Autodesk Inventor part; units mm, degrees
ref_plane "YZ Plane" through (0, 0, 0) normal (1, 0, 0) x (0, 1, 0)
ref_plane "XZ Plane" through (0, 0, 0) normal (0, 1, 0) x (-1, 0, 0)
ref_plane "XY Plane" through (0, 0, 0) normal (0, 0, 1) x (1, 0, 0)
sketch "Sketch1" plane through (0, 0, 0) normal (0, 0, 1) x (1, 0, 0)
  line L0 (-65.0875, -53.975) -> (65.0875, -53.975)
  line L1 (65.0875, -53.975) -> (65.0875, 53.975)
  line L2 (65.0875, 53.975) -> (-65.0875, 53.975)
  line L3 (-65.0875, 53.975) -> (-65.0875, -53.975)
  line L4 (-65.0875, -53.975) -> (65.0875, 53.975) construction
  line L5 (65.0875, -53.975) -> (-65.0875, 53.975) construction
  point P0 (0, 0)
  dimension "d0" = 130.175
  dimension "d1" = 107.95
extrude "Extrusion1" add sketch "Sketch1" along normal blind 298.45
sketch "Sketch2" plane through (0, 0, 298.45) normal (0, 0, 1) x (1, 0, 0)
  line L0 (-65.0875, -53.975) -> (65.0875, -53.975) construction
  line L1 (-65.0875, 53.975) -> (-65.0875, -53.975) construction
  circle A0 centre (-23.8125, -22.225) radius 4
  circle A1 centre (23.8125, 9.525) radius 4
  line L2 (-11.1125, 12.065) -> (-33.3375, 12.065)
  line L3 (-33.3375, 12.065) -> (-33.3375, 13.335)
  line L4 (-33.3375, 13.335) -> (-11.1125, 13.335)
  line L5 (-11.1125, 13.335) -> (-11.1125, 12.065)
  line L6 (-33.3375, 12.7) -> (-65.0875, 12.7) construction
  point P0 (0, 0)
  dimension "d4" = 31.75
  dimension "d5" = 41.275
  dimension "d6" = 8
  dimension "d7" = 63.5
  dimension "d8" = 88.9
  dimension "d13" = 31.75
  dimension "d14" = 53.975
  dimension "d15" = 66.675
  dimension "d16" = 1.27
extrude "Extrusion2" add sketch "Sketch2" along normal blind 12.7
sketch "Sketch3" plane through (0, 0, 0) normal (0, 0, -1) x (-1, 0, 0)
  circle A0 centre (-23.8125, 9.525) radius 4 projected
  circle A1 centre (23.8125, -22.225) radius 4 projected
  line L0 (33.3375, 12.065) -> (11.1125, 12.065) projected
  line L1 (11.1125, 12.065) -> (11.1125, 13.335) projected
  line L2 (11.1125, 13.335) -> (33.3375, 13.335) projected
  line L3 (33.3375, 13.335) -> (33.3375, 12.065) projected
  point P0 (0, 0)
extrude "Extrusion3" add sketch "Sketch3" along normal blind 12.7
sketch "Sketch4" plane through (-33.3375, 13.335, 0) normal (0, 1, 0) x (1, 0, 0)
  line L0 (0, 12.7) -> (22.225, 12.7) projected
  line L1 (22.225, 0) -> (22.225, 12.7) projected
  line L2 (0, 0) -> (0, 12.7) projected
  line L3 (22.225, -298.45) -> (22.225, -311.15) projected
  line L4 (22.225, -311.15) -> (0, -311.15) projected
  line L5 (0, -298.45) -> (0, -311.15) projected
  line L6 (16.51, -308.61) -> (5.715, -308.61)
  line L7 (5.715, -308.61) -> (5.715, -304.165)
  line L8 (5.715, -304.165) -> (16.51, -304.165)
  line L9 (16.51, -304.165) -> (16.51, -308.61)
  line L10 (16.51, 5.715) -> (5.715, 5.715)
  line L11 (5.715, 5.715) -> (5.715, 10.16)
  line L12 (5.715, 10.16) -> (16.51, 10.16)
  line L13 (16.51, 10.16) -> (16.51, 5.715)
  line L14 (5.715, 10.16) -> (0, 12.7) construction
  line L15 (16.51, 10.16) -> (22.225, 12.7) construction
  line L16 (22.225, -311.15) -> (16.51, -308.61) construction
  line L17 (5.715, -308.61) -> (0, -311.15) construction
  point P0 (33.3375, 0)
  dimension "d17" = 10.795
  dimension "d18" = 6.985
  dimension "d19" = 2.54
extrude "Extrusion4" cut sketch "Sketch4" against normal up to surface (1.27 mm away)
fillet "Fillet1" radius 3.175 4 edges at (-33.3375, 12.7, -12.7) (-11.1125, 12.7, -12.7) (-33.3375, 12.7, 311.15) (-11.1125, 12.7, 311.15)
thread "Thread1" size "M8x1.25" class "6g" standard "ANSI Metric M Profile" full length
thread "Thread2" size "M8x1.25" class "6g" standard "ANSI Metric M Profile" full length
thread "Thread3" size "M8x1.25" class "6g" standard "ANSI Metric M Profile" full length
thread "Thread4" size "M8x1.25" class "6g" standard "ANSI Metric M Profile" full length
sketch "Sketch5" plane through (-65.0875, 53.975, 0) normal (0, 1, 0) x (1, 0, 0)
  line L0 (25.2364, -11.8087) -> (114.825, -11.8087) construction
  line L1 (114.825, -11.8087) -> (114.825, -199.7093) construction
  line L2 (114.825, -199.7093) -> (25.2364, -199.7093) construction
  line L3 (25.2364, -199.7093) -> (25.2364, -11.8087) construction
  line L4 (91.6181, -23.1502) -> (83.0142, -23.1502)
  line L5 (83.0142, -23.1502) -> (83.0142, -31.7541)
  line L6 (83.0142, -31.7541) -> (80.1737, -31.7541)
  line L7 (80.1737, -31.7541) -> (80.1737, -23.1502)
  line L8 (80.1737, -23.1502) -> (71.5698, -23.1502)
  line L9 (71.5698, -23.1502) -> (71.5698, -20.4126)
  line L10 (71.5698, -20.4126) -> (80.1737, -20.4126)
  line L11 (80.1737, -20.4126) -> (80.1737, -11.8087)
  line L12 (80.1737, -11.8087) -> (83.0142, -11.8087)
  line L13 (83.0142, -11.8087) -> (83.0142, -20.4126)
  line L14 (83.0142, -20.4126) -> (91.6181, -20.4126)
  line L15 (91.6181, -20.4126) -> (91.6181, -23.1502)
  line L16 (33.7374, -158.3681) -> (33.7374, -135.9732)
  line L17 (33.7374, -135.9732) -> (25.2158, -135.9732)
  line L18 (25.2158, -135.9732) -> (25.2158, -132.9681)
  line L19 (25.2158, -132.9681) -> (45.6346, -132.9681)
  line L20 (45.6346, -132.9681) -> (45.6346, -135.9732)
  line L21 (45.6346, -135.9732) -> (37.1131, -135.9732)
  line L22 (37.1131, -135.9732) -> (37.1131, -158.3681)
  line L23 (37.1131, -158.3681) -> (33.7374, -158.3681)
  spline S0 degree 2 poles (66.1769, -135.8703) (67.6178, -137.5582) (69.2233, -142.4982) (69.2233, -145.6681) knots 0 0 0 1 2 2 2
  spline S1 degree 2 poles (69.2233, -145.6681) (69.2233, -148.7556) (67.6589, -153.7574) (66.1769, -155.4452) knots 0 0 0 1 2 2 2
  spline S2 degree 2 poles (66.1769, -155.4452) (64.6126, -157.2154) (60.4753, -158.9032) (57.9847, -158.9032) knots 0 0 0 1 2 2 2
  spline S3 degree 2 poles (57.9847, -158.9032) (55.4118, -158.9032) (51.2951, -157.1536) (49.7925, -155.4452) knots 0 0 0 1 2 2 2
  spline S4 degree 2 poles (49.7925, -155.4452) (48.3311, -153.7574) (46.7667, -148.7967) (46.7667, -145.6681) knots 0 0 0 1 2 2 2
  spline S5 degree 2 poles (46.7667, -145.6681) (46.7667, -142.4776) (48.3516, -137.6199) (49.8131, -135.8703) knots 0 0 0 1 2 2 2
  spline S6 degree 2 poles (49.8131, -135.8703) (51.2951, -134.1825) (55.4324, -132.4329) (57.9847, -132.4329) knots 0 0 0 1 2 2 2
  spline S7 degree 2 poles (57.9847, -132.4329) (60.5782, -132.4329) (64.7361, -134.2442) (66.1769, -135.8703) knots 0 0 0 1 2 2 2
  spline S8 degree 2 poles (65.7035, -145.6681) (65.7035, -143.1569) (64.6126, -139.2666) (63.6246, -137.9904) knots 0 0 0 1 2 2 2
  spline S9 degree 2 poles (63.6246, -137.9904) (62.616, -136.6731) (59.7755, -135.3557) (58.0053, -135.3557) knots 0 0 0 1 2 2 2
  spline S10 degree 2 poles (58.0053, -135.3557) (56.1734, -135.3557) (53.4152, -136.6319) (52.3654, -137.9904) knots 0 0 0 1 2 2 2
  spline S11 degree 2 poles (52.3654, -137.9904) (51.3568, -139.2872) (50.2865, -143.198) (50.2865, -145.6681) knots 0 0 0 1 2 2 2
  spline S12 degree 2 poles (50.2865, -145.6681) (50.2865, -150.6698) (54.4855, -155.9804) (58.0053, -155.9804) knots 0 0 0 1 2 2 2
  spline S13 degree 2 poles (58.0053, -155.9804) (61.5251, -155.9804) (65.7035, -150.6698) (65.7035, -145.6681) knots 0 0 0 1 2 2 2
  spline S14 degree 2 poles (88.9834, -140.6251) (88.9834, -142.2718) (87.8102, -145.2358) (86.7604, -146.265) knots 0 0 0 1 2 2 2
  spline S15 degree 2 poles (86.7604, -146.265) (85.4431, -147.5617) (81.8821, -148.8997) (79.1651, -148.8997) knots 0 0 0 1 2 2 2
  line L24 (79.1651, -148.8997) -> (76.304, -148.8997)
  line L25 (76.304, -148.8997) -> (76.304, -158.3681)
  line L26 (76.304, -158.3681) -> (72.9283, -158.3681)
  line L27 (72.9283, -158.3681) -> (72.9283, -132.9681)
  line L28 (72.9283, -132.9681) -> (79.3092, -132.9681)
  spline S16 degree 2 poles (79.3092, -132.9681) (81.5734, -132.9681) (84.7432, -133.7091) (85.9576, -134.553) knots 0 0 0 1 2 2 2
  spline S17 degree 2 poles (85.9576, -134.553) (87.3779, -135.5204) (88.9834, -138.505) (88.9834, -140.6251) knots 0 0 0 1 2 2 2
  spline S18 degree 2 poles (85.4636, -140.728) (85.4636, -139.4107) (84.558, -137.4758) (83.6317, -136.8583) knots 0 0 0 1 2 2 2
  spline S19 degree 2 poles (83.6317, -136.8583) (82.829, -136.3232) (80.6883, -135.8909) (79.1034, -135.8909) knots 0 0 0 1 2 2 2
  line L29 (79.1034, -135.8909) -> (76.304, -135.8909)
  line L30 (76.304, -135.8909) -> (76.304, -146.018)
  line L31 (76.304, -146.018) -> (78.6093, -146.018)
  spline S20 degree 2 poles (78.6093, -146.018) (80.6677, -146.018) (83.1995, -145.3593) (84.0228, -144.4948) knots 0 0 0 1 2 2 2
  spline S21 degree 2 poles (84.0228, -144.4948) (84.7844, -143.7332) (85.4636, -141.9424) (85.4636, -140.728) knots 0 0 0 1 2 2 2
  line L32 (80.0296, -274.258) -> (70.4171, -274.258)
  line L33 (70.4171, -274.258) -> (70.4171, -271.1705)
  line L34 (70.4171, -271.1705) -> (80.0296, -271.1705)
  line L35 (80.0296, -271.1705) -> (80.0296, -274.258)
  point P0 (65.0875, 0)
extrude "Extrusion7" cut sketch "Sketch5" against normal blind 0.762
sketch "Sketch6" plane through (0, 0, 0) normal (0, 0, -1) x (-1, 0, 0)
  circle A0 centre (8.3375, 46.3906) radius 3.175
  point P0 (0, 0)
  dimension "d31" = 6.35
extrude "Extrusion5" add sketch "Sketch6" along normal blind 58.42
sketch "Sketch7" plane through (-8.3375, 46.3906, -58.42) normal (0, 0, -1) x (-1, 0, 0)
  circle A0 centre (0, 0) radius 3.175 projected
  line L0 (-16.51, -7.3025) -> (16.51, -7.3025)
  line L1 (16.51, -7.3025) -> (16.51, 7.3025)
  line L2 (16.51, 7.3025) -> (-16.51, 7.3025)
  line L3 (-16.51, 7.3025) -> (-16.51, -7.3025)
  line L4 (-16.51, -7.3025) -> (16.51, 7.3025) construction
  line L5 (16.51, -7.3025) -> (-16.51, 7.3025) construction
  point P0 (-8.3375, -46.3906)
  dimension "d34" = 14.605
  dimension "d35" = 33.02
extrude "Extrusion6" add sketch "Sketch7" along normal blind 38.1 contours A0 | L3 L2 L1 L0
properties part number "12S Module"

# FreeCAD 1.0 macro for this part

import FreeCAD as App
import Part
import Sketcher
Q = App.Units.Quantity


def edges_at(feature, points):
    """Names of the edges that pass closest to the given points."""
    edges = feature.Shape.Edges
    near = lambda p: min(range(len(edges)), key=lambda i: edges[i].distToShape(Part.Vertex(*p))[0])
    return sorted({f"Edge{near(p) + 1}" for p in points})


def add_polygon(sketch, points):
    """Adds a closed chain of lines whose ends are joined by coincident constraints."""
    first, n = sketch.GeometryCount, len(points)
    for a, b in zip(points, points[1:] + points[:1]):
        sketch.addGeometry(Part.LineSegment(App.Vector(*a, 0), App.Vector(*b, 0)), False)
    for i in range(n):
        sketch.addConstraint(Sketcher.Constraint("Coincident", first + i, 2, first + (i + 1) % n, 1))

doc = App.newDocument("Part")
body = doc.addObject("PartDesign::Body", "Body")

# Sketch on XY plane
sketch1 = body.newObject("Sketcher::SketchObject", "Sketch")
sketch1.AttachmentSupport = (doc.getObject("XY_Plane"), [""])
sketch1.MapMode = "FlatFace"
add_polygon(sketch1, [(-65.0875, 53.975), (-65.0875, -53.975), (65.0875, -53.975), (65.0875, 53.975)])  # lines 0-3
sketch1.addConstraint(Sketcher.Constraint("Vertical", 0))
sketch1.addConstraint(Sketcher.Constraint("Horizontal", 1))
sketch1.addConstraint(Sketcher.Constraint("Vertical", 2))
sketch1.addConstraint(Sketcher.Constraint("Horizontal", 3))
sketch1.addConstraint(Sketcher.Constraint("Symmetric", 0, 2, 2, 2, -1, 1))
sketch1.addConstraint(Sketcher.Constraint("DistanceY", 0, 2, 0, 1, Q("4.25 in")))
sketch1.addConstraint(Sketcher.Constraint("DistanceX", 1, 1, 1, 2, Q("5.125 in")))
pad1 = body.newObject("PartDesign::Pad", "Pad")
pad1.Profile = sketch1
pad1.Length = Q("11.75 in")

# Sketch on XY plane
sketch2 = body.newObject("Sketcher::SketchObject", "Sketch001")
sketch2.AttachmentSupport = (doc.getObject("XY_Plane"), [""])
sketch2.MapMode = "FlatFace"
sketch2.AttachmentOffset = App.Placement(App.Vector(0, 0, 11.75 * 25.4), App.Rotation())
sketch2.addGeometry(Part.Circle(App.Vector(-23.8125, -22.225, 0), App.Vector(0, 0, 1), 4), False)  # 0
sketch2.addGeometry(Part.Circle(App.Vector(23.8125, 9.525, 0), App.Vector(0, 0, 1), 4), False)  # 1
add_polygon(sketch2, [(-33.3375, 12.065), (-11.1125, 12.065), (-11.1125, 13.335), (-33.3375, 13.335)])  # lines 2-5
sketch2.addConstraint(Sketcher.Constraint("Horizontal", 2))
sketch2.addConstraint(Sketcher.Constraint("Vertical", 3))
sketch2.addConstraint(Sketcher.Constraint("Horizontal", 4))
sketch2.addConstraint(Sketcher.Constraint("Vertical", 5))
sketch2.addConstraint(Sketcher.Constraint("Equal", 0, 1))
sketch2.addConstraint(Sketcher.Constraint("DistanceY", 3, 1, 3, 2, Q("0.05 in")))
sketch2.addConstraint(Sketcher.Constraint("Diameter", 0, 8.0))
sketch2.addConstraint(Sketcher.Constraint("DistanceY", 0, 3, 1, 3, Q("1.25 in")))
sketch2.addConstraint(Sketcher.Constraint("DistanceY", 1, 3, 2, 2, Q("0.1 in")))
sketch2.addConstraint(Sketcher.Constraint("DistanceX", 0, 3, 2, 2, Q("0.5 in")))
sketch2.addConstraint(Sketcher.Constraint("DistanceX", 2, 1, 2, 2, Q("0.875 in")))
sketch2.addConstraint(Sketcher.Constraint("DistanceX", 4, 2, 1, 3, Q("2.25 in")))
sketch2.addConstraint(Sketcher.Constraint("DistanceX", 0, 3, -1, 1, Q("0.9375 in")))
sketch2.addConstraint(Sketcher.Constraint("DistanceY", 0, 3, -1, 1, Q("0.875 in")))
pad2 = body.newObject("PartDesign::Pad", "Pad001")
pad2.Profile = sketch2
pad2.Length = Q("0.5 in")

# Sketch on XY plane
sketch3 = body.newObject("Sketcher::SketchObject", "Sketch002")
sketch3.AttachmentSupport = (doc.getObject("XY_Plane"), [""])
sketch3.MapMode = "FlatFace"
sketch3.addGeometry(Part.Circle(App.Vector(23.8125, 9.525, 0), App.Vector(0, 0, 1), 4), False)  # 0
sketch3.addGeometry(Part.Circle(App.Vector(-23.8125, -22.225, 0), App.Vector(0, 0, 1), 4), False)  # 1
add_polygon(sketch3, [(-11.1125, 12.065), (-33.3375, 12.065), (-33.3375, 13.335), (-11.1125, 13.335)])  # lines 2-5
sketch3.addConstraint(Sketcher.Constraint("Horizontal", 2))
sketch3.addConstraint(Sketcher.Constraint("Vertical", 3))
sketch3.addConstraint(Sketcher.Constraint("Horizontal", 4))
sketch3.addConstraint(Sketcher.Constraint("Vertical", 5))
sketch3.addConstraint(Sketcher.Constraint("Equal", 0, 1))
sketch3.addConstraint(Sketcher.Constraint("DistanceY", 3, 1, 3, 2, Q("0.05 in")))
sketch3.addConstraint(Sketcher.Constraint("DistanceY", 0, 3, 2, 2, Q("0.1 in")))
sketch3.addConstraint(Sketcher.Constraint("DistanceY", 1, 3, 3, 2, Q("1.4 in")))
sketch3.addConstraint(Sketcher.Constraint("DistanceX", 1, 3, 4, 2, Q("0.5 in")))
sketch3.addConstraint(Sketcher.Constraint("Diameter", 0, 8.0))
sketch3.addConstraint(Sketcher.Constraint("DistanceX", 2, 2, 2, 1, Q("0.875 in")))
sketch3.addConstraint(Sketcher.Constraint("DistanceX", 2, 2, 0, 3, Q("2.25 in")))
sketch3.addConstraint(Sketcher.Constraint("DistanceX", -1, 1, 0, 3, Q("0.9375 in")))
sketch3.addConstraint(Sketcher.Constraint("DistanceY", -1, 1, 0, 3, Q("0.375 in")))
pad3 = body.newObject("PartDesign::Pad", "Pad002")
pad3.Profile = sketch3
pad3.Length = Q("0.5 in")
pad3.Reversed = True

# Sketch on XZ plane
sketch4 = body.newObject("Sketcher::SketchObject", "Sketch003")
sketch4.AttachmentSupport = (doc.getObject("XZ_Plane"), [""])
sketch4.MapMode = "FlatFace"
sketch4.AttachmentOffset = App.Placement(App.Vector(0, 0, -0.525 * 25.4), App.Rotation())
add_polygon(sketch4, [(-27.6225, 308.61), (-16.8275, 308.61), (-16.8275, 304.165), (-27.6225, 304.165)])  # lines 0-3
add_polygon(sketch4, [(-27.6225, -5.715), (-16.8275, -5.715), (-16.8275, -10.16), (-27.6225, -10.16)])  # lines 4-7
sketch4.addConstraint(Sketcher.Constraint("Horizontal", 0))
sketch4.addConstraint(Sketcher.Constraint("Vertical", 1))
sketch4.addConstraint(Sketcher.Constraint("Horizontal", 2))
sketch4.addConstraint(Sketcher.Constraint("Vertical", 3))
sketch4.addConstraint(Sketcher.Constraint("Horizontal", 4))
sketch4.addConstraint(Sketcher.Constraint("Vertical", 5))
sketch4.addConstraint(Sketcher.Constraint("Horizontal", 6))
sketch4.addConstraint(Sketcher.Constraint("Vertical", 7))
sketch4.addConstraint(Sketcher.Constraint("Vertical", 1, 2, 4, 2))
sketch4.addConstraint(Sketcher.Constraint("Vertical", 3, 2, 6, 2))
sketch4.addConstraint(Sketcher.Constraint("Equal", 3, 5))
sketch4.addConstraint(Sketcher.Constraint("DistanceX", 0, 1, 0, 2, Q("0.425 in")))
sketch4.addConstraint(Sketcher.Constraint("DistanceY", 5, 2, -1, 1, Q("0.4 in")))
sketch4.addConstraint(Sketcher.Constraint("DistanceY", 4, 2, 1, 2, Q("12.2 in")))
sketch4.addConstraint(Sketcher.Constraint("DistanceY", 1, 2, 1, 1, Q("0.175 in")))
sketch4.addConstraint(Sketcher.Constraint("DistanceX", 0, 2, -1, 1, Q("0.6625 in")))
pocket1 = body.newObject("PartDesign::Pocket", "Pocket")
pocket1.Profile = sketch4
pocket1.Length = Q("0.05 in")
pocket1.Reversed = True
doc.recompute()

fillet = body.newObject("PartDesign::Fillet", "Fillet")
fillet.Base = (pocket1, edges_at(pocket1, [
    (-33.337, 12.7, -12.7),
    (-11.113, 12.7, -12.7),
    (-33.337, 12.7, 311.15),
    (-11.113, 12.7, 311.15),
]))
fillet.Radius = Q("0.125 in")

# Sketch on XZ plane
sketch5 = body.newObject("Sketcher::SketchObject", "Sketch004")
sketch5.AttachmentSupport = (doc.getObject("XZ_Plane"), [""])
sketch5.MapMode = "FlatFace"
sketch5.AttachmentOffset = App.Placement(App.Vector(0, 0, -2.125 * 25.4), App.Rotation())
add_polygon(sketch5, [(17.9267, 23.1502), (26.5306, 23.1502), (26.5306, 20.4126), (17.9267, 20.4126), (17.9267, 11.8087), (15.0862, 11.8087), (15.0862, 20.4126), (6.4823, 20.4126), (6.4823, 23.1502), (15.0862, 23.1502), (15.0862, 31.7541), (17.9267, 31.7541)])  # lines 0-11
add_polygon(sketch5, [(-31.3501, 135.9732), (-31.3501, 158.3681), (-27.9744, 158.3681), (-27.9744, 135.9732), (-19.4529, 135.9732), (-19.4529, 132.9681), (-39.8717, 132.9681), (-39.8717, 135.9732)])  # lines 12-19
sketch5.addGeometry(Part.BSplineCurve([App.Vector(1.0894, 135.8703, 0), App.Vector(2.5303, 137.5582, 0), App.Vector(4.1358, 142.4982, 0), App.Vector(4.1358, 145.6681, 0)], [3, 1, 3], [0, 1, 2], False, 2, [1, 1, 1, 1], False), False)  # 20
sketch5.addGeometry(Part.BSplineCurve([App.Vector(-7.1028, 132.4329, 0), App.Vector(-4.5093, 132.4329, 0), App.Vector(-0.3514, 134.2442, 0), App.Vector(1.0894, 135.8703, 0)], [3, 1, 3], [0, 1, 2], False, 2, [1, 1, 1, 1], False), False)  # 21
sketch5.addGeometry(Part.BSplineCurve([App.Vector(-15.2744, 135.8703, 0), App.Vector(-13.7924, 134.1825, 0), App.Vector(-9.6551, 132.4329, 0), App.Vector(-7.1028, 132.4329, 0)], [3, 1, 3], [0, 1, 2], False, 2, [1, 1, 1, 1], False), False)  # 22
sketch5.addGeometry(Part.BSplineCurve([App.Vector(-18.3208, 145.6681, 0), App.Vector(-18.3208, 142.4776, 0), App.Vector(-16.7359, 137.6199, 0), App.Vector(-15.2744, 135.8703, 0)], [3, 1, 3], [0, 1, 2], False, 2, [1, 1, 1, 1], False), False)  # 23
sketch5.addGeometry(Part.BSplineCurve([App.Vector(-15.295, 155.4452, 0), App.Vector(-16.7564, 153.7574, 0), App.Vector(-18.3208, 148.7967, 0), App.Vector(-18.3208, 145.6681, 0)], [3, 1, 3], [0, 1, 2], False, 2, [1, 1, 1, 1], False), False)  # 24
sketch5.addGeometry(Part.BSplineCurve([App.Vector(-7.1028, 158.9032, 0), App.Vector(-9.6757, 158.9032, 0), App.Vector(-13.7924, 157.1536, 0), App.Vector(-15.295, 155.4452, 0)], [3, 1, 3], [0, 1, 2], False, 2, [1, 1, 1, 1], False), False)  # 25
sketch5.addGeometry(Part.BSplineCurve([App.Vector(1.0894, 155.4452, 0), App.Vector(-0.4749, 157.2154, 0), App.Vector(-4.6122, 158.9032, 0), App.Vector(-7.1028, 158.9032, 0)], [3, 1, 3], [0, 1, 2], False, 2, [1, 1, 1, 1], False), False)  # 26
sketch5.addGeometry(Part.BSplineCurve([App.Vector(4.1358, 145.6681, 0), App.Vector(4.1358, 148.7556, 0), App.Vector(2.5714, 153.7574, 0), App.Vector(1.0894, 155.4452, 0)], [3, 1, 3], [0, 1, 2], False, 2, [1, 1, 1, 1], False), False)  # 27
sketch5.addGeometry(Part.BSplineCurve([App.Vector(0.616, 145.6681, 0), App.Vector(0.616, 143.1569, 0), App.Vector(-0.4749, 139.2666, 0), App.Vector(-1.4629, 137.9904, 0)], [3, 1, 3], [0, 1, 2], False, 2, [1, 1, 1, 1], False), False)  # 28
sketch5.addGeometry(Part.BSplineCurve([App.Vector(-7.0822, 155.9804, 0), App.Vector(-3.5624, 155.9804, 0), App.Vector(0.616, 150.6698, 0), App.Vector(0.616, 145.6681, 0)], [3, 1, 3], [0, 1, 2], False, 2, [1, 1, 1, 1], False), False)  # 29
sketch5.addGeometry(Part.BSplineCurve([App.Vector(-14.801, 145.6681, 0), App.Vector(-14.801, 150.6698, 0), App.Vector(-10.602, 155.9804, 0), App.Vector(-7.0822, 155.9804, 0)], [3, 1, 3], [0, 1, 2], False, 2, [1, 1, 1, 1], False), False)  # 30
sketch5.addGeometry(Part.BSplineCurve([App.Vector(-12.7221, 137.9904, 0), App.Vector(-13.7307, 139.2872, 0), App.Vector(-14.801, 143.198, 0), App.Vector(-14.801, 145.6681, 0)], [3, 1, 3], [0, 1, 2], False, 2, [1, 1, 1, 1], False), False)  # 31
sketch5.addGeometry(Part.BSplineCurve([App.Vector(-7.0822, 135.3557, 0), App.Vector(-8.9141, 135.3557, 0), App.Vector(-11.6723, 136.6319, 0), App.Vector(-12.7221, 137.9904, 0)], [3, 1, 3], [0, 1, 2], False, 2, [1, 1, 1, 1], False), False)  # 32
sketch5.addGeometry(Part.BSplineCurve([App.Vector(-1.4629, 137.9904, 0), App.Vector(-2.4715, 136.6731, 0), App.Vector(-5.312, 135.3557, 0), App.Vector(-7.0822, 135.3557, 0)], [3, 1, 3], [0, 1, 2], False, 2, [1, 1, 1, 1], False), False)  # 33
sketch5.addGeometry(Part.BSplineCurve([App.Vector(23.8959, 140.6251, 0), App.Vector(23.8959, 142.2718, 0), App.Vector(22.7227, 145.2358, 0), App.Vector(21.6729, 146.265, 0)], [3, 1, 3], [0, 1, 2], False, 2, [1, 1, 1, 1], False), False)  # 34
sketch5.addGeometry(Part.BSplineCurve([App.Vector(20.8701, 134.553, 0), App.Vector(22.2904, 135.5204, 0), App.Vector(23.8959, 138.505, 0), App.Vector(23.8959, 140.6251, 0)], [3, 1, 3], [0, 1, 2], False, 2, [1, 1, 1, 1], False), False)  # 35
sketch5.addGeometry(Part.BSplineCurve([App.Vector(14.2217, 132.9681, 0), App.Vector(16.4859, 132.9681, 0), App.Vector(19.6557, 133.7091, 0), App.Vector(20.8701, 134.553, 0)], [3, 1, 3], [0, 1, 2], False, 2, [1, 1, 1, 1], False), False)  # 36
sketch5.addGeometry(Part.LineSegment(App.Vector(14.2217, 132.9681, 0), App.Vector(7.8408, 132.9681, 0)), False)  # 37
sketch5.addGeometry(Part.LineSegment(App.Vector(7.8408, 132.9681, 0), App.Vector(7.8408, 158.3681, 0)), False)  # 38
sketch5.addGeometry(Part.LineSegment(App.Vector(7.8408, 158.3681, 0), App.Vector(11.2165, 158.3681, 0)), False)  # 39
sketch5.addGeometry(Part.LineSegment(App.Vector(11.2165, 158.3681, 0), App.Vector(11.2165, 148.8997, 0)), False)  # 40
sketch5.addGeometry(Part.LineSegment(App.Vector(11.2165, 148.8997, 0), App.Vector(14.0776, 148.8997, 0)), False)  # 41
sketch5.addGeometry(Part.BSplineCurve([App.Vector(21.6729, 146.265, 0), App.Vector(20.3556, 147.5617, 0), App.Vector(16.7946, 148.8997, 0), App.Vector(14.0776, 148.8997, 0)], [3, 1, 3], [0, 1, 2], False, 2, [1, 1, 1, 1], False), False)  # 42
sketch5.addGeometry(Part.BSplineCurve([App.Vector(20.3761, 140.728, 0), App.Vector(20.3761, 139.4107, 0), App.Vector(19.4705, 137.4758, 0), App.Vector(18.5442, 136.8583, 0)], [3, 1, 3], [0, 1, 2], False, 2, [1, 1, 1, 1], False), False)  # 43
sketch5.addGeometry(Part.BSplineCurve([App.Vector(18.9353, 144.4948, 0), App.Vector(19.6969, 143.7332, 0), App.Vector(20.3761, 141.9424, 0), App.Vector(20.3761, 140.728, 0)], [3, 1, 3], [0, 1, 2], False, 2, [1, 1, 1, 1], False), False)  # 44
sketch5.addGeometry(Part.BSplineCurve([App.Vector(13.5218, 146.018, 0), App.Vector(15.5802, 146.018, 0), App.Vector(18.112, 145.3593, 0), App.Vector(18.9353, 144.4948, 0)], [3, 1, 3], [0, 1, 2], False, 2, [1, 1, 1, 1], False), False)  # 45
sketch5.addGeometry(Part.LineSegment(App.Vector(13.5218, 146.018, 0), App.Vector(11.2165, 146.018, 0)), False)  # 46
sketch5.addGeometry(Part.LineSegment(App.Vector(11.2165, 146.018, 0), App.Vector(11.2165, 135.8909, 0)), False)  # 47
sketch5.addGeometry(Part.LineSegment(App.Vector(11.2165, 135.8909, 0), App.Vector(14.0159, 135.8909, 0)), False)  # 48
sketch5.addGeometry(Part.BSplineCurve([App.Vector(18.5442, 136.8583, 0), App.Vector(17.7415, 136.3232, 0), App.Vector(15.6008, 135.8909, 0), App.Vector(14.0159, 135.8909, 0)], [3, 1, 3], [0, 1, 2], False, 2, [1, 1, 1, 1], False), False)  # 49
add_polygon(sketch5, [(5.3296, 274.258), (14.9421, 274.258), (14.9421, 271.1705), (5.3296, 271.1705)])  # lines 50-53
sketch5.addConstraint(Sketcher.Constraint("Block", 20))
sketch5.addConstraint(Sketcher.Constraint("Block", 21))
sketch5.addConstraint(Sketcher.Constraint("Block", 22))
sketch5.addConstraint(Sketcher.Constraint("Block", 23))
sketch5.addConstraint(Sketcher.Constraint("Block", 24))
sketch5.addConstraint(Sketcher.Constraint("Block", 25))
sketch5.addConstraint(Sketcher.Constraint("Block", 26))
sketch5.addConstraint(Sketcher.Constraint("Block", 27))
sketch5.addConstraint(Sketcher.Constraint("Block", 28))
sketch5.addConstraint(Sketcher.Constraint("Block", 29))
sketch5.addConstraint(Sketcher.Constraint("Block", 30))
sketch5.addConstraint(Sketcher.Constraint("Block", 31))
sketch5.addConstraint(Sketcher.Constraint("Block", 32))
sketch5.addConstraint(Sketcher.Constraint("Block", 33))
sketch5.addConstraint(Sketcher.Constraint("Block", 34))
sketch5.addConstraint(Sketcher.Constraint("Block", 35))
sketch5.addConstraint(Sketcher.Constraint("Block", 36))
sketch5.addConstraint(Sketcher.Constraint("Block", 42))
sketch5.addConstraint(Sketcher.Constraint("Block", 43))
sketch5.addConstraint(Sketcher.Constraint("Block", 44))
sketch5.addConstraint(Sketcher.Constraint("Block", 45))
sketch5.addConstraint(Sketcher.Constraint("Block", 49))
sketch5.addConstraint(Sketcher.Constraint("Coincident", 36, 1, 37, 1))
sketch5.addConstraint(Sketcher.Constraint("Coincident", 37, 2, 38, 1))
sketch5.addConstraint(Sketcher.Constraint("Coincident", 38, 2, 39, 1))
sketch5.addConstraint(Sketcher.Constraint("Coincident", 39, 2, 40, 1))
sketch5.addConstraint(Sketcher.Constraint("Coincident", 40, 2, 41, 1))
sketch5.addConstraint(Sketcher.Constraint("Coincident", 41, 2, 42, 2))
sketch5.addConstraint(Sketcher.Constraint("Coincident", 45, 1, 46, 1))
sketch5.addConstraint(Sketcher.Constraint("Coincident", 46, 2, 47, 1))
sketch5.addConstraint(Sketcher.Constraint("Coincident", 47, 2, 48, 1))
sketch5.addConstraint(Sketcher.Constraint("Coincident", 48, 2, 49, 2))
sketch5.addConstraint(Sketcher.Constraint("Horizontal", 0))
sketch5.addConstraint(Sketcher.Constraint("Vertical", 1))
sketch5.addConstraint(Sketcher.Constraint("Horizontal", 2))
sketch5.addConstraint(Sketcher.Constraint("Vertical", 3))
sketch5.addConstraint(Sketcher.Constraint("Horizontal", 4))
sketch5.addConstraint(Sketcher.Constraint("Vertical", 5))
sketch5.addConstraint(Sketcher.Constraint("Horizontal", 6))
sketch5.addConstraint(Sketcher.Constraint("Vertical", 7))
sketch5.addConstraint(Sketcher.Constraint("Horizontal", 8))
sketch5.addConstraint(Sketcher.Constraint("Vertical", 9))
sketch5.addConstraint(Sketcher.Constraint("Horizontal", 10))
sketch5.addConstraint(Sketcher.Constraint("Vertical", 11))
sketch5.addConstraint(Sketcher.Constraint("Vertical", 12))
sketch5.addConstraint(Sketcher.Constraint("Horizontal", 13))
sketch5.addConstraint(Sketcher.Constraint("Vertical", 14))
sketch5.addConstraint(Sketcher.Constraint("Horizontal", 15))
sketch5.addConstraint(Sketcher.Constraint("Vertical", 16))
sketch5.addConstraint(Sketcher.Constraint("Horizontal", 17))
sketch5.addConstraint(Sketcher.Constraint("Vertical", 18))
sketch5.addConstraint(Sketcher.Constraint("Horizontal", 19))
sketch5.addConstraint(Sketcher.Constraint("Horizontal", 37))
sketch5.addConstraint(Sketcher.Constraint("Vertical", 38))
sketch5.addConstraint(Sketcher.Constraint("Horizontal", 39))
sketch5.addConstraint(Sketcher.Constraint("Vertical", 40))
sketch5.addConstraint(Sketcher.Constraint("Horizontal", 41))
sketch5.addConstraint(Sketcher.Constraint("Horizontal", 46))
sketch5.addConstraint(Sketcher.Constraint("Vertical", 47))
sketch5.addConstraint(Sketcher.Constraint("Horizontal", 48))
sketch5.addConstraint(Sketcher.Constraint("Horizontal", 50))
sketch5.addConstraint(Sketcher.Constraint("Vertical", 51))
sketch5.addConstraint(Sketcher.Constraint("Horizontal", 52))
sketch5.addConstraint(Sketcher.Constraint("Vertical", 53))
sketch5.addConstraint(Sketcher.Constraint("Horizontal", 2, 2, 5, 2))
sketch5.addConstraint(Sketcher.Constraint("Horizontal", 0, 2, 7, 2))
sketch5.addConstraint(Sketcher.Constraint("Horizontal", 15, 2, 18, 2))
sketch5.addConstraint(Sketcher.Constraint("Horizontal", 17, 2, 37, 2))
sketch5.addConstraint(Sketcher.Constraint("Horizontal", 13, 2, 38, 2))
sketch5.addConstraint(Sketcher.Constraint("Vertical", 5, 2, 8, 2))
sketch5.addConstraint(Sketcher.Constraint("Vertical", 3, 2, 10, 2))
sketch5.addConstraint(Sketcher.Constraint("Vertical", 40, 2, 46, 2))
sketch5.addConstraint(Sketcher.Constraint("Equal", 2, 6))
sketch5.addConstraint(Sketcher.Constraint("Equal", 15, 19))
sketch5.addConstraint(Sketcher.Constraint("Equal", 13, 39))
sketch5.addConstraint(Sketcher.Constraint("Equal", 8, 3))
sketch5.addConstraint(Sketcher.Constraint("Equal", 5, 9))
sketch5.addConstraint(Sketcher.Constraint("DistanceY", 38, 1, 38, 2, Q("1 in")))
sketch5.addConstraint(Sketcher.Constraint("DistanceX", 13, 1, 13, 2, Q("0.1329 in")))
sketch5.addConstraint(Sketcher.Constraint("DistanceX", 15, 1, 15, 2, Q("0.3355 in")))
sketch5.addConstraint(Sketcher.Constraint("DistanceY", 12, 1, 12, 2, Q("0.8817 in")))
sketch5.addConstraint(Sketcher.Constraint("DistanceY", -1, 1, 51, 2, Q("10.676 in")))
sketch5.addConstraint(Sketcher.Constraint("DistanceX", 0, 1, 0, 2, 8.604))
sketch5.addConstraint(Sketcher.Constraint("DistanceX", 4, 2, 4, 1, 2.8405))
sketch5.addConstraint(Sketcher.Constraint("DistanceX", 37, 2, 37, 1, 6.381))
sketch5.addConstraint(Sketcher.Constraint("DistanceX", 50, 1, 50, 2, 9.6125))
sketch5.addConstraint(Sketcher.Constraint("DistanceY", 1, 2, 1, 1, 2.7376))
sketch5.addConstraint(Sketcher.Constraint("DistanceY", 51, 2, 51, 1, 3.0875))
sketch5.addConstraint(Sketcher.Constraint("DistanceX", -1, 1, 0, 2, Q("1.0445 in")))
sketch5.addConstraint(Sketcher.Constraint("DistanceY", -1, 1, 3, 2, Q("0.4649 in")))
sketch5.addConstraint(Sketcher.Constraint("DistanceX", 12, 2, 9, 2, Q("1.8282 in")))
sketch5.addConstraint(Sketcher.Constraint("DistanceX", -1, 1, 50, 2, 14.942))
pocket2 = body.newObject("PartDesign::Pocket", "Pocket001")
pocket2.Profile = sketch5
pocket2.Length = Q("0.03 in")
pocket2.Reversed = True

# Sketch on XY plane
sketch6 = body.newObject("Sketcher::SketchObject", "Sketch005")
sketch6.AttachmentSupport = (doc.getObject("XY_Plane"), [""])
sketch6.MapMode = "FlatFace"
sketch6.addGeometry(Part.Circle(App.Vector(-8.3375, 46.3906, 0), App.Vector(0, 0, 1), 3.175), False)
sketch6.addConstraint(Sketcher.Constraint("Diameter", 0, Q("0.25 in")))
sketch6.addConstraint(Sketcher.Constraint("DistanceY", -1, 1, 0, 3, Q("1.8264 in")))
sketch6.addConstraint(Sketcher.Constraint("DistanceX", 0, 3, -1, 1, 8.3375))
pad4 = body.newObject("PartDesign::Pad", "Pad003")
pad4.Profile = sketch6
pad4.Length = Q("2.3 in")
pad4.Reversed = True

# Sketch on XY plane
sketch7 = body.newObject("Sketcher::SketchObject", "Sketch006")
sketch7.AttachmentSupport = (doc.getObject("XY_Plane"), [""])
sketch7.MapMode = "FlatFace"
sketch7.AttachmentOffset = App.Placement(App.Vector(0, 0, -2.3 * 25.4), App.Rotation())
add_polygon(sketch7, [(8.1725, 53.6931), (8.1725, 39.0881), (-24.8475, 39.0881), (-24.8475, 53.6931)])  # lines 0-3
sketch7.addConstraint(Sketcher.Constraint("Vertical", 0))
sketch7.addConstraint(Sketcher.Constraint("Horizontal", 1))
sketch7.addConstraint(Sketcher.Constraint("Vertical", 2))
sketch7.addConstraint(Sketcher.Constraint("Horizontal", 3))
sketch7.addConstraint(Sketcher.Constraint("DistanceX", 1, 2, 1, 1, Q("1.3 in")))
sketch7.addConstraint(Sketcher.Constraint("DistanceY", 0, 2, 0, 1, Q("0.575 in")))
sketch7.addConstraint(Sketcher.Constraint("DistanceY", -1, 1, 0, 2, Q("1.5389 in")))
sketch7.addConstraint(Sketcher.Constraint("DistanceX", -1, 1, 0, 2, 8.1725))
pad5 = body.newObject("PartDesign::Pad", "Pad004")
pad5.Profile = sketch7
pad5.Length = Q("1.5 in")
pad5.Reversed = True

doc.recompute()
